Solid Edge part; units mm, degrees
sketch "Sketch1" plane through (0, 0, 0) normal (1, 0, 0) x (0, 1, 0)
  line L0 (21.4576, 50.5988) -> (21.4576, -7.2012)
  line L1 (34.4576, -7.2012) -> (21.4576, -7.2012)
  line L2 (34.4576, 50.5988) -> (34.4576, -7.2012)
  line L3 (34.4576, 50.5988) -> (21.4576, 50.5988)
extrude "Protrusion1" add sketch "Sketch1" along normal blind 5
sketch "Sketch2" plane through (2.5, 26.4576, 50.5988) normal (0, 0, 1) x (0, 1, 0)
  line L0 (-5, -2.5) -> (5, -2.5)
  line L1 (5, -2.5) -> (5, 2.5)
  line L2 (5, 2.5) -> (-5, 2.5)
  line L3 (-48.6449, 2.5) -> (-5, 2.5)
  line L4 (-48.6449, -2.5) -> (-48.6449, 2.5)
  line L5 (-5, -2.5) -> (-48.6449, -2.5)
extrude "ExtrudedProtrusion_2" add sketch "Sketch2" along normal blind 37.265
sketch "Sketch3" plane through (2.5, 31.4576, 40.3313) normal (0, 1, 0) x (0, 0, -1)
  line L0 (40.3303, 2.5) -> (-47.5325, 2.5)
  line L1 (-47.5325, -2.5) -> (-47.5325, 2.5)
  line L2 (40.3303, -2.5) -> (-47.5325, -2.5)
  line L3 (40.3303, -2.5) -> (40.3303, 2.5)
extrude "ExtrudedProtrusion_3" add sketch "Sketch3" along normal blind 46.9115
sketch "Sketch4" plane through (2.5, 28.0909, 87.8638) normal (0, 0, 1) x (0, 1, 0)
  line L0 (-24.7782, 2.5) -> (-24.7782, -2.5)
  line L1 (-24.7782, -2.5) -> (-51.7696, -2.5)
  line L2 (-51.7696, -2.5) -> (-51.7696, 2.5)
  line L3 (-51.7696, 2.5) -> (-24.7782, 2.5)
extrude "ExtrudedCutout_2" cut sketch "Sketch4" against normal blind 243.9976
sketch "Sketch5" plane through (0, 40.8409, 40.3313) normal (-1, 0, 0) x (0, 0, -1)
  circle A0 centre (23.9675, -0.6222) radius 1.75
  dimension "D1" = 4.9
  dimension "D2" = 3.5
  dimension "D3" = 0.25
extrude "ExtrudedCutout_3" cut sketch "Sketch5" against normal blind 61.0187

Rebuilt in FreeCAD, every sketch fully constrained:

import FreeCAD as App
import Part
import Sketcher
from FreeCAD import Vector
Q = App.Units.Quantity


def add_polygon(sketch, points):
    """Adds a closed chain of lines whose ends are joined by coincident constraints."""
    first, n = sketch.GeometryCount, len(points)
    for a, b in zip(points, points[1:] + points[:1]):
        sketch.addGeometry(Part.LineSegment(App.Vector(*a, 0), App.Vector(*b, 0)), False)
    for i in range(n):
        sketch.addConstraint(Sketcher.Constraint("Coincident", first + i, 2, first + (i + 1) % n, 1))

doc = App.newDocument("Part")
params = doc.addObject("Spreadsheet::Sheet", "Params")
for row, (alias, value) in enumerate([
    ("sketch1_width", "13 mm"),
    ("sketch1_height", "57.8 mm"),
    ("pad1_length", "5 mm"),
    ("sketch2_width", "5 mm"),
    ("pad2_length", "37.265 mm"),
    ("sketch3_width", "5 mm"),
    ("pad3_length", "46.9115 mm"),
    ("sketch4_width", "5 mm"),
    ("pocket1_length", "243.9976 mm"),
    ("sketch5_diameter", "3.5 mm"),
    ("pocket2_length", "61.0187 mm"),
], start=1):
    params.set(f"A{row}", alias)
    params.set(f"B{row}", "=" + value)
    params.setAlias(f"B{row}", alias)

body = doc.addObject("PartDesign::Body", "Body")

sketch1 = body.newObject("Sketcher::SketchObject", "Sketch")
sketch1.AttachmentSupport = (doc.getObject("YZ_Plane"), [""])
sketch1.MapMode = "FlatFace"
add_polygon(sketch1, [(34.4576, 50.5988), (21.4576, 50.5988), (21.4576, -7.2012), (34.4576, -7.2012)])
sketch1.addConstraint(Sketcher.Constraint("Horizontal", 0))
sketch1.addConstraint(Sketcher.Constraint("Vertical", 1))
sketch1.addConstraint(Sketcher.Constraint("Horizontal", 2))
sketch1.addConstraint(Sketcher.Constraint("Vertical", 3))
sketch1.addConstraint(Sketcher.Constraint("DistanceX", 0, 2, 0, 1, Q("13 mm")))
sketch1.addConstraint(Sketcher.Constraint("DistanceY", 1, 2, 1, 1, Q("57.8 mm")))
sketch1.addConstraint(Sketcher.Constraint("DistanceX", -1, 1, 0, 2, Q("21.4576 mm")))
sketch1.addConstraint(Sketcher.Constraint("DistanceY", -1, 1, 0, 2, Q("50.5988 mm")))
sketch1.setExpression("Constraints[8]", "Params.sketch1_width")
sketch1.setExpression("Constraints[9]", "Params.sketch1_height")
pad1 = body.newObject("PartDesign::Pad", "Pad")
pad1.Profile = sketch1
pad1.setExpression("Length", "Params.pad1_length")

sketch2 = body.newObject("Sketcher::SketchObject", "Sketch001")
sketch2.AttachmentSupport = (doc.getObject("XY_Plane"), [""])
sketch2.MapMode = "FlatFace"
sketch2.AttachmentOffset = App.Placement(Vector(0, 0, 50.5988), App.Rotation())
add_polygon(sketch2, [(5, -22.1873), (5, 31.4576), (0, 31.4576), (0, -22.1873)])
sketch2.addConstraint(Sketcher.Constraint("Vertical", 0))
sketch2.addConstraint(Sketcher.Constraint("Horizontal", 1))
sketch2.addConstraint(Sketcher.Constraint("Vertical", 2))
sketch2.addConstraint(Sketcher.Constraint("Horizontal", 3))
sketch2.addConstraint(Sketcher.Constraint("PointOnObject", 1, 2, -2))
sketch2.addConstraint(Sketcher.Constraint("DistanceX", 1, 2, 1, 1, Q("5 mm")))
sketch2.addConstraint(Sketcher.Constraint("DistanceY", 0, 1, 0, 2, Q("53.645 mm")))
sketch2.addConstraint(Sketcher.Constraint("DistanceY", -1, 1, 0, 2, Q("31.4576 mm")))
sketch2.setExpression("Constraints[9]", "Params.sketch2_width")
pad2 = body.newObject("PartDesign::Pad", "Pad001")
pad2.Profile = sketch2
pad2.setExpression("Length", "Params.pad2_length")

sketch3 = body.newObject("Sketcher::SketchObject", "Sketch002")
sketch3.AttachmentSupport = (doc.getObject("XZ_Plane"), [""])
sketch3.MapMode = "FlatFace"
sketch3.AttachmentOffset = App.Placement(Vector(0, 0, -31.4576), App.Rotation())
add_polygon(sketch3, [(5, 0.001), (0, 0.001), (0, 87.8638), (5, 87.8638)])
sketch3.addConstraint(Sketcher.Constraint("Horizontal", 0))
sketch3.addConstraint(Sketcher.Constraint("Vertical", 1))
sketch3.addConstraint(Sketcher.Constraint("Horizontal", 2))
sketch3.addConstraint(Sketcher.Constraint("Vertical", 3))
sketch3.addConstraint(Sketcher.Constraint("PointOnObject", 0, 2, -2))
sketch3.addConstraint(Sketcher.Constraint("DistanceX", 0, 2, 0, 1, Q("5 mm")))
sketch3.addConstraint(Sketcher.Constraint("DistanceY", 1, 1, 1, 2, Q("87.8628 mm")))
sketch3.addConstraint(Sketcher.Constraint("DistanceY", -1, 1, 0, 2, Q("0.001 mm")))
sketch3.setExpression("Constraints[9]", "Params.sketch3_width")
pad3 = body.newObject("PartDesign::Pad", "Pad002")
pad3.Profile = sketch3
pad3.setExpression("Length", "Params.pad3_length")
pad3.Reversed = True

sketch4 = body.newObject("Sketcher::SketchObject", "Sketch003")
sketch4.AttachmentSupport = (doc.getObject("XY_Plane"), [""])
sketch4.MapMode = "FlatFace"
sketch4.AttachmentOffset = App.Placement(Vector(0, 0, 87.8638), App.Rotation())
add_polygon(sketch4, [(5, 3.3127), (0, 3.3127), (0, -23.6787), (5, -23.6787)])
sketch4.addConstraint(Sketcher.Constraint("Horizontal", 0))
sketch4.addConstraint(Sketcher.Constraint("Vertical", 1))
sketch4.addConstraint(Sketcher.Constraint("Horizontal", 2))
sketch4.addConstraint(Sketcher.Constraint("Vertical", 3))
sketch4.addConstraint(Sketcher.Constraint("PointOnObject", 0, 2, -2))
sketch4.addConstraint(Sketcher.Constraint("DistanceX", 0, 2, 0, 1, Q("5 mm")))
sketch4.addConstraint(Sketcher.Constraint("DistanceY", 1, 2, 1, 1, Q("26.9914 mm")))
sketch4.addConstraint(Sketcher.Constraint("DistanceY", -1, 1, 0, 2, Q("3.3127 mm")))
sketch4.setExpression("Constraints[9]", "Params.sketch4_width")
pocket1 = body.newObject("PartDesign::Pocket", "Pocket")
pocket1.Profile = sketch4
pocket1.setExpression("Length", "Params.pocket1_length")

sketch5 = body.newObject("Sketcher::SketchObject", "Sketch004")
sketch5.AttachmentSupport = (doc.getObject("YZ_Plane"), [""])
sketch5.MapMode = "FlatFace"
sketch5.addGeometry(Part.Circle(Vector(41.4631, 16.3638, 0), Vector(0, 0, 1), 1.75), False)
sketch5.addConstraint(Sketcher.Constraint("Diameter", 0, Q("3.5 mm")))
sketch5.addConstraint(Sketcher.Constraint("DistanceX", -1, 1, 0, 3, Q("41.463 mm")))
sketch5.addConstraint(Sketcher.Constraint("DistanceY", -1, 1, 0, 3, Q("16.3638 mm")))
sketch5.setExpression("Constraints[0]", "Params.sketch5_diameter")
pocket2 = body.newObject("PartDesign::Pocket", "Pocket001")
pocket2.Profile = sketch5
pocket2.setExpression("Length", "Params.pocket2_length")
pocket2.Reversed = True

doc.recompute()
